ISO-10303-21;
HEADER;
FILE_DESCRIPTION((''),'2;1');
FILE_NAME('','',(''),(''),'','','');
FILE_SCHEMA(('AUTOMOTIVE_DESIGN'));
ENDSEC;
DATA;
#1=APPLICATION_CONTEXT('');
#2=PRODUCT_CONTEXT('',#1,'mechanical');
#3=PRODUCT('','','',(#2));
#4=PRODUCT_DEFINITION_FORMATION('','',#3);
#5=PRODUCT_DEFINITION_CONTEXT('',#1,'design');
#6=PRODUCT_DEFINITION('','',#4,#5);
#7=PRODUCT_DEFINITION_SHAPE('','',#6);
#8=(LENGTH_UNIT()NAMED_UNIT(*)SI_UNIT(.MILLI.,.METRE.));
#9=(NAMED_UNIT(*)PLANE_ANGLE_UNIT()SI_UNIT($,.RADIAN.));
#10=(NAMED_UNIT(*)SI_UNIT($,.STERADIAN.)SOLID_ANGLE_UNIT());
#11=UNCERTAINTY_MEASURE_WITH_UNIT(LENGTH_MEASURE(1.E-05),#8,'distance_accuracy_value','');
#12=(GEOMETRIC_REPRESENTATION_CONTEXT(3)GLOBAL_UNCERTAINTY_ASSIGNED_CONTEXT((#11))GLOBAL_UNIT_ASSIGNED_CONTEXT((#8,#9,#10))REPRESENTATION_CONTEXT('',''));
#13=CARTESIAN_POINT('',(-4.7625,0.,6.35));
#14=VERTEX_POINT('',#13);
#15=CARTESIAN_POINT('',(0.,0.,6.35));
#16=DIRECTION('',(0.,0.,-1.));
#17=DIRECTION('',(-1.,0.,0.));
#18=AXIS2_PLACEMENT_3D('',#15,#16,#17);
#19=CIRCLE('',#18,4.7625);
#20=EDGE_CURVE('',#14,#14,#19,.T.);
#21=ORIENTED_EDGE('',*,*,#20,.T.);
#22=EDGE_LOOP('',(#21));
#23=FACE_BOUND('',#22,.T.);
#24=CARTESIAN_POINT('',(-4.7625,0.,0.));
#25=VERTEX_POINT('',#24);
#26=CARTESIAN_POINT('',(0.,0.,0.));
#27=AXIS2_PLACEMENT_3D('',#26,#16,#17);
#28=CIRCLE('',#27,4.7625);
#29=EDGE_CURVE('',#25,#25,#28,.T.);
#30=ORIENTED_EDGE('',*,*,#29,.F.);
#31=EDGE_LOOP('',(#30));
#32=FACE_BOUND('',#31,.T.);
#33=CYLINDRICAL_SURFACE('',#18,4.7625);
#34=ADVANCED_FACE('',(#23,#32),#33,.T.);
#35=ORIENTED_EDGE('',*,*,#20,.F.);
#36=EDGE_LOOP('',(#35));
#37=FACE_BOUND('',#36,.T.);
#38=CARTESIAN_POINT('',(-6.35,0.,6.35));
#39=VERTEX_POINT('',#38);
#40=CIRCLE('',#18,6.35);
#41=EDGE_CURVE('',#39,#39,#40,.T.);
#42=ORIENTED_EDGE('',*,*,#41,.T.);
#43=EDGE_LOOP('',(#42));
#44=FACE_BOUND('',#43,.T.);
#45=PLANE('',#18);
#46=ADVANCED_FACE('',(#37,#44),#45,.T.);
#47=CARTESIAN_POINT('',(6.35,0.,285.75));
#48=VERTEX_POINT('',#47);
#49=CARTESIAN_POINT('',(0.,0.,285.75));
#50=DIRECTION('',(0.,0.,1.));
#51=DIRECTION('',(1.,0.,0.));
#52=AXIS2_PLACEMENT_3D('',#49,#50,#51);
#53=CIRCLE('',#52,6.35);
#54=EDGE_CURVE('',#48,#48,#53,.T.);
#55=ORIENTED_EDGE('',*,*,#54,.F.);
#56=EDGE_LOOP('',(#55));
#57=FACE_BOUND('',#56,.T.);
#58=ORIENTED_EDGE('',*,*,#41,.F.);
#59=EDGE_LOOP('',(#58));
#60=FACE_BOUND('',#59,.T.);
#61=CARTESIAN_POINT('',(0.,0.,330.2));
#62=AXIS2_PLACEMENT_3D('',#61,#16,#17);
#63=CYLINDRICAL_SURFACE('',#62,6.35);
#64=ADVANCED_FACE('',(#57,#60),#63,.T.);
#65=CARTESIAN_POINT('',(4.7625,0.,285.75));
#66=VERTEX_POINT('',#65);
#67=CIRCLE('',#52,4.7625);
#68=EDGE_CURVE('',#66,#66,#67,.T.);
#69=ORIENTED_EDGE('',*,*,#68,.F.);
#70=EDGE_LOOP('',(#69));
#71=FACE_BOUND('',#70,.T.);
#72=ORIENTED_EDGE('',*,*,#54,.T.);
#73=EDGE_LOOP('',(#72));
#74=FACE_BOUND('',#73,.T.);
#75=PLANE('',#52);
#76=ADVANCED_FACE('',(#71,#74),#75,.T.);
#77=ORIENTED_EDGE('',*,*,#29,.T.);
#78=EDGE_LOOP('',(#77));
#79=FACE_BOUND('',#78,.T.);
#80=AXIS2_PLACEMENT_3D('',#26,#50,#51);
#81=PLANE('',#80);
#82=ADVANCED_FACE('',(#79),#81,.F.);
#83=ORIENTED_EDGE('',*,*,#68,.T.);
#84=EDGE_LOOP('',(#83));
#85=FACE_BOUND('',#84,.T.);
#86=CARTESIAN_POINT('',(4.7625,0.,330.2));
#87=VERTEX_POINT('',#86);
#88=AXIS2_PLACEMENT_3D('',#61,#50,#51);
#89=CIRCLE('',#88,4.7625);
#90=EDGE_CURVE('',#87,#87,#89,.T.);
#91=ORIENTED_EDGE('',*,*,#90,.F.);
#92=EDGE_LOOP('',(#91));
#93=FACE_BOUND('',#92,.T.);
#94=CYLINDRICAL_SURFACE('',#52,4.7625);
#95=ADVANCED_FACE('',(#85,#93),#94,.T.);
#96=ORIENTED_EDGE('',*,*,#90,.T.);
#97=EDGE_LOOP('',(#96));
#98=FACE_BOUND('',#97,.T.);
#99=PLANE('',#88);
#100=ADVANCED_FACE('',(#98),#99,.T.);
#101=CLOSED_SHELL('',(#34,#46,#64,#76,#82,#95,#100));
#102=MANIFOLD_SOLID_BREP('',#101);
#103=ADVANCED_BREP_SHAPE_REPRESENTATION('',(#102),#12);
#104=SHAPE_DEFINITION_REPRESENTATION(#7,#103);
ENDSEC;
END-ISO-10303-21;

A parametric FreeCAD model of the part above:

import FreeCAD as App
import Part
import Sketcher
Q = App.Units.Quantity

doc = App.newDocument("Part")
params = doc.addObject("Spreadsheet::Sheet", "Params")
for row, (alias, value) in enumerate([
    ("sketch1_diameter", "0.5 in"),
    ("pad1_length", "13 in"),
    ("sketch2_diameter", "0.5 in"),
    ("sketch2_diameter2", "0.375 in"),
    ("pocket1_length", "1.75 in"),
    ("sketch3_diameter", "0.5 in"),
    ("sketch3_diameter2", "0.375 in"),
    ("pocket2_length", "0.25 in"),
], start=1):
    params.set(f"A{row}", alias)
    params.set(f"B{row}", "=" + value)
    params.setAlias(f"B{row}", alias)

body = doc.addObject("PartDesign::Body", "Body")

# Sketch on XY plane
sketch1 = body.newObject("Sketcher::SketchObject", "Sketch")
sketch1.AttachmentSupport = (doc.getObject("XY_Plane"), [""])
sketch1.MapMode = "FlatFace"
sketch1.addGeometry(Part.Circle(App.Vector(0, 0, 0), App.Vector(0, 0, 1), 6.35), False)
sketch1.addConstraint([
    Sketcher.Constraint("Coincident", 0, 3, -1, 1),
    Sketcher.Constraint("Diameter", 0, Q("0.5 in")),
])
sketch1.setExpression("Constraints[1]", "Params.sketch1_diameter")
pad1 = body.newObject("PartDesign::Pad", "Pad")
pad1.Profile = sketch1
pad1.setExpression("Length", "Params.pad1_length")

# Sketch on XY plane
sketch2 = body.newObject("Sketcher::SketchObject", "Sketch001")
sketch2.AttachmentSupport = (doc.getObject("XY_Plane"), [""])
sketch2.MapMode = "FlatFace"
sketch2.AttachmentOffset = App.Placement(App.Vector(0, 0, 11.25 * 25.4), App.Rotation())
sketch2.addGeometry([
    Part.Circle(App.Vector(0, 0, 0), App.Vector(0, 0, 1), 6.35),
    Part.Circle(App.Vector(0, 0, 0), App.Vector(0, 0, 1), 4.7625),
], False)
sketch2.addConstraint([
    Sketcher.Constraint("Coincident", 0, 3, -1, 1),
    Sketcher.Constraint("Coincident", 1, 3, -1, 1),
    Sketcher.Constraint("Diameter", 0, Q("0.5 in")),
    Sketcher.Constraint("Diameter", 1, Q("0.375 in")),
])
sketch2.setExpression("Constraints[2]", "Params.sketch2_diameter")
sketch2.setExpression("Constraints[3]", "Params.sketch2_diameter2")
pocket1 = body.newObject("PartDesign::Pocket", "Pocket")
pocket1.Profile = sketch2
pocket1.setExpression("Length", "Params.pocket1_length")
pocket1.Reversed = True

# Sketch on XY plane
sketch3 = body.newObject("Sketcher::SketchObject", "Sketch002")
sketch3.AttachmentSupport = (doc.getObject("XY_Plane"), [""])
sketch3.MapMode = "FlatFace"
sketch3.addGeometry([
    Part.Circle(App.Vector(0, 0, 0), App.Vector(0, 0, 1), 6.35),
    Part.Circle(App.Vector(0, 0, 0), App.Vector(0, 0, 1), 4.7625),
], False)
sketch3.addConstraint([
    Sketcher.Constraint("Coincident", 0, 3, -1, 1),
    Sketcher.Constraint("Coincident", 1, 3, -1, 1),
    Sketcher.Constraint("Diameter", 0, Q("0.5 in")),
    Sketcher.Constraint("Diameter", 1, Q("0.375 in")),
])
sketch3.setExpression("Constraints[2]", "Params.sketch3_diameter")
sketch3.setExpression("Constraints[3]", "Params.sketch3_diameter2")
pocket2 = body.newObject("PartDesign::Pocket", "Pocket001")
pocket2.Profile = sketch3
pocket2.setExpression("Length", "Params.pocket2_length")
pocket2.Reversed = True

doc.recompute()
